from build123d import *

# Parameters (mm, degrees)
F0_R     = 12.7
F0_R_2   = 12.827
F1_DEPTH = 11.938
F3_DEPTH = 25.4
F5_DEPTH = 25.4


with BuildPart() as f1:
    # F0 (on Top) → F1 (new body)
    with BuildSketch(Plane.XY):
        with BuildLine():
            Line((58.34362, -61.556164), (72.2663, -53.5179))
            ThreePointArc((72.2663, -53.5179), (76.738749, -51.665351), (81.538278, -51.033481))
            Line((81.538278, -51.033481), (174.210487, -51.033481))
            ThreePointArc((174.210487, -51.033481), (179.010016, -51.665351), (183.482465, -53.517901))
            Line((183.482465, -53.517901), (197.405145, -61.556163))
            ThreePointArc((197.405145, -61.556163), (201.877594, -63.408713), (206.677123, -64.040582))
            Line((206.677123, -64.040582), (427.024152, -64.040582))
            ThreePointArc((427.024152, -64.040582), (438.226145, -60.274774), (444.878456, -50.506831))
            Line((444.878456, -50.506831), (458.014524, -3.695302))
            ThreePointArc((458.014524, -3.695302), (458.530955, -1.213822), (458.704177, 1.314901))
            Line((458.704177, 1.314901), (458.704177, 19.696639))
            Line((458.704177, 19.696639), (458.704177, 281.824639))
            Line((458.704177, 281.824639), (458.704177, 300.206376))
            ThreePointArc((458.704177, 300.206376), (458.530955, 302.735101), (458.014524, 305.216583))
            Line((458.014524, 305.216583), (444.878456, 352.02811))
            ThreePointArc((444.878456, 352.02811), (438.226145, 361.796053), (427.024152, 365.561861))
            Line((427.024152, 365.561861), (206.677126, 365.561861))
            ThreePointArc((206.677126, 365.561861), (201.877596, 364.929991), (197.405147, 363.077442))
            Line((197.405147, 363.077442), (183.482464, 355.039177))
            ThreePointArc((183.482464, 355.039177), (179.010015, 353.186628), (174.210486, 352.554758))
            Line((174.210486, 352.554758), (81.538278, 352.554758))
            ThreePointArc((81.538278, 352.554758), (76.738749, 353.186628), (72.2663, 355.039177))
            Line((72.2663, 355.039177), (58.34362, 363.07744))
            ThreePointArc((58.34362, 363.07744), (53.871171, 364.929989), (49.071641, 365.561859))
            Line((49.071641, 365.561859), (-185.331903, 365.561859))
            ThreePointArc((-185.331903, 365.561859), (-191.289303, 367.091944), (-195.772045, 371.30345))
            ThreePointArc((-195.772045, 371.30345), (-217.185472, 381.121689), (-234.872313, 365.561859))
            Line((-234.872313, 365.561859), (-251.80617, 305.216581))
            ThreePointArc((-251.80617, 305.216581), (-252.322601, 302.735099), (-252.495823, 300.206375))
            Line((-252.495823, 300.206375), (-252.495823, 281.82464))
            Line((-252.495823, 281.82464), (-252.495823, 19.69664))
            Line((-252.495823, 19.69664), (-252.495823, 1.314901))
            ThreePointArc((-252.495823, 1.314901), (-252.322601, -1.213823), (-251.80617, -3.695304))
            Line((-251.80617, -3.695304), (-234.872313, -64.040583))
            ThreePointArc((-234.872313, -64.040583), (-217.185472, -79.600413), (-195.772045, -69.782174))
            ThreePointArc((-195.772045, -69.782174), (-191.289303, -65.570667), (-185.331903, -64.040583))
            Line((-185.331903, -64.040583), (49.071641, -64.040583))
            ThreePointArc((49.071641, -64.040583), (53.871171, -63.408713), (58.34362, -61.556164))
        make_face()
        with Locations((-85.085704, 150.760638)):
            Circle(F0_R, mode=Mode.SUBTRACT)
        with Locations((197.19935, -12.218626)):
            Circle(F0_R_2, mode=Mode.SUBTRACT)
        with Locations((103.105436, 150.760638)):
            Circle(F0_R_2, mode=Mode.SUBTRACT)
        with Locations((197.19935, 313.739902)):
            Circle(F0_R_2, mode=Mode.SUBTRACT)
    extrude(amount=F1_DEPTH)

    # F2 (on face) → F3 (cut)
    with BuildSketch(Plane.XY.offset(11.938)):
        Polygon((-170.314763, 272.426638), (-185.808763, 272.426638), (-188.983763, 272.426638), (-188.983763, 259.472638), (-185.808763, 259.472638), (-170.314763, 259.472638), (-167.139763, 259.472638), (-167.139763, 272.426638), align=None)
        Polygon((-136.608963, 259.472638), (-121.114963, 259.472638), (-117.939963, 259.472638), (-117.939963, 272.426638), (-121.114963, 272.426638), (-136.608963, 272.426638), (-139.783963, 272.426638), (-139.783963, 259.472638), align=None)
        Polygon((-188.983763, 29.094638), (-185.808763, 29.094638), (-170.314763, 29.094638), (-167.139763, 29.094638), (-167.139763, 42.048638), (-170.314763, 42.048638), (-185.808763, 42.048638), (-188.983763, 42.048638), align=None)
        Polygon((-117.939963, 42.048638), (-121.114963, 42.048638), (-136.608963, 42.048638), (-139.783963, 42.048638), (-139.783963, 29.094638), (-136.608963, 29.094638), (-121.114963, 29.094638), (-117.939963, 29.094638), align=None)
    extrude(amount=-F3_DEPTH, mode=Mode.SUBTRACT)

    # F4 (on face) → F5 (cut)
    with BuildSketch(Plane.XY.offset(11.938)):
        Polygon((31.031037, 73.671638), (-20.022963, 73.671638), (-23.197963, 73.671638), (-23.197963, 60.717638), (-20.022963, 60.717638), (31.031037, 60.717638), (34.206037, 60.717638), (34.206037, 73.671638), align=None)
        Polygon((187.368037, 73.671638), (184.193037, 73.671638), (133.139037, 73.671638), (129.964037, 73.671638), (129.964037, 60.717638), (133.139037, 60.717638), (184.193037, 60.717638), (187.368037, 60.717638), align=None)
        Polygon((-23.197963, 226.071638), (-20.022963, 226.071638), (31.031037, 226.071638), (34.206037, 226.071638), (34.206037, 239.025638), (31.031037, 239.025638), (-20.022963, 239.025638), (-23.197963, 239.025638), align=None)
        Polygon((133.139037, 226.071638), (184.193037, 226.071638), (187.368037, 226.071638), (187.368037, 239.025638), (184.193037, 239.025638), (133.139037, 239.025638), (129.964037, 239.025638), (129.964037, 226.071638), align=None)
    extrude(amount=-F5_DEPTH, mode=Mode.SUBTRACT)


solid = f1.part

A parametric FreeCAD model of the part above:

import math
import FreeCAD as App
import Part
import Sketcher
from FreeCAD import Vector
Q = App.Units.Quantity


def add_polygon(sketch, points):
    """Adds a closed chain of lines whose ends are joined by coincident constraints."""
    first, n = sketch.GeometryCount, len(points)
    for a, b in zip(points, points[1:] + points[:1]):
        sketch.addGeometry(Part.LineSegment(App.Vector(*a, 0), App.Vector(*b, 0)), False)
    for i in range(n):
        sketch.addConstraint(Sketcher.Constraint("Coincident", first + i, 2, first + (i + 1) % n, 1))

doc = App.newDocument("Part")
body = doc.addObject("PartDesign::Body", "Body")

sketch1 = body.newObject("Sketcher::SketchObject", "Sketch")
sketch1.AttachmentSupport = (doc.getObject("XY_Plane"), [""])
sketch1.MapMode = "FlatFace"
sketch1.addGeometry([
    Part.LineSegment(Vector(58.34362, -61.556164, 0), Vector(72.2663, -53.5179, 0)),
    Part.ArcOfCircle(Part.Circle(Vector(81.538278, -69.577438, 0), Vector(0, 0, 1), 18.543957), math.radians(90), math.radians(119.999999)),
    Part.LineSegment(Vector(81.538278, -51.033481, 0), Vector(174.210487, -51.033481, 0)),
    Part.ArcOfCircle(Part.Circle(Vector(174.210489, -69.577425, 0), Vector(0, 0, 1), 18.543944), math.radians(59.999984), math.radians(90.000005)),
    Part.LineSegment(Vector(183.482465, -53.517901, 0), Vector(197.405145, -61.556163, 0)),
    Part.ArcOfCircle(Part.Circle(Vector(206.677116, -45.496653, 0), Vector(0, 0, 1), 18.543929), math.radians(-120.000022), math.radians(-89.999978)),
    Part.LineSegment(Vector(206.677123, -64.040582, 0), Vector(427.024152, -64.040582, 0)),
    Part.ArcOfCircle(Part.Circle(Vector(427.024152, -45.496625, 0), Vector(0, 0, 1), 18.543957), math.radians(-89.999999), math.radians(-15.674978)),
    Part.LineSegment(Vector(444.878456, -50.506831, 0), Vector(458.014524, -3.695302, 0)),
    Part.ArcOfCircle(Part.Circle(Vector(440.160281, 1.314896, 0), Vector(0, 0, 1), 18.543896), math.radians(-15.675005), math.radians(0.000015)),
    Part.LineSegment(Vector(458.704177, 1.314901, 0), Vector(458.704177, 300.206376, 0)),
    Part.ArcOfCircle(Part.Circle(Vector(440.160252, 300.206381, 0), Vector(0, 0, 1), 18.543925), math.radians(-0.000015), math.radians(15.674993)),
    Part.LineSegment(Vector(458.014524, 305.216583, 0), Vector(444.878456, 352.02811, 0)),
    Part.ArcOfCircle(Part.Circle(Vector(427.024152, 347.017904, 0), Vector(0, 0, 1), 18.543957), math.radians(15.674978), math.radians(89.999999)),
    Part.LineSegment(Vector(427.024152, 365.561861, 0), Vector(206.677126, 365.561861, 0)),
    Part.ArcOfCircle(Part.Circle(Vector(206.677125, 347.017904, 0), Vector(0, 0, 1), 18.543957), math.radians(89.999997), math.radians(119.999999)),
    Part.LineSegment(Vector(197.405147, 363.077442, 0), Vector(183.482464, 355.039177, 0)),
    Part.ArcOfCircle(Part.Circle(Vector(174.210486, 371.098715, 0), Vector(0, 0, 1), 18.543957), math.radians(-90), math.radians(-60.000001)),
    Part.LineSegment(Vector(174.210486, 352.554758, 0), Vector(81.538278, 352.554758, 0)),
    Part.ArcOfCircle(Part.Circle(Vector(81.538278, 371.098715, 0), Vector(0, 0, 1), 18.543957), math.radians(-119.999999), math.radians(-90)),
    Part.LineSegment(Vector(72.2663, 355.039177, 0), Vector(58.34362, 363.07744, 0)),
    Part.ArcOfCircle(Part.Circle(Vector(49.071642, 347.017902, 0), Vector(0, 0, 1), 18.543957), math.radians(60.000001), math.radians(90.000003)),
    Part.LineSegment(Vector(49.071641, 365.561859, 0), Vector(-185.331903, 365.561859, 0)),
    Part.ArcOfCircle(Part.Circle(Vector(-185.331903, 377.924498, 0), Vector(0, 0, 1), 12.362639), math.radians(-147.617481), math.radians(-90.000001)),
    Part.ArcOfCircle(Part.Circle(Vector(-214.042292, 359.716619, 0), Vector(0, 0, 1), 21.634615), math.radians(32.382512), math.radians(164.325024)),
    Part.LineSegment(Vector(-234.872313, 365.561859, 0), Vector(-251.80617, 305.216581, 0)),
    Part.ArcOfCircle(Part.Circle(Vector(-233.951898, 300.206379, 0), Vector(0, 0, 1), 18.543925), math.radians(164.325007), math.radians(180.000012)),
    Part.LineSegment(Vector(-252.495823, 300.206375, 0), Vector(-252.495823, 1.314901, 0)),
    Part.ArcOfCircle(Part.Circle(Vector(-233.951912, 1.314896, 0), Vector(0, 0, 1), 18.543911), math.radians(179.999985), math.radians(195.674999)),
    Part.LineSegment(Vector(-251.80617, -3.695304, 0), Vector(-234.872313, -64.040583, 0)),
    Part.ArcOfCircle(Part.Circle(Vector(-214.042292, -58.195343, 0), Vector(0, 0, 1), 21.634615), math.radians(-164.325024), math.radians(-32.382512)),
    Part.ArcOfCircle(Part.Circle(Vector(-185.331906, -76.403216, 0), Vector(0, 0, 1), 12.362633), math.radians(89.999985), math.radians(147.617497)),
    Part.LineSegment(Vector(-185.331903, -64.040583, 0), Vector(49.071641, -64.040583, 0)),
    Part.ArcOfCircle(Part.Circle(Vector(49.071642, -45.496626, 0), Vector(0, 0, 1), 18.543957), math.radians(-90.000003), math.radians(-60.000001)),
    Part.Circle(Vector(197.19935, -12.218626, 0), Vector(0, 0, 1), 12.827),
    Part.Circle(Vector(-85.085704, 150.760638, 0), Vector(0, 0, 1), 12.7),
    Part.Circle(Vector(103.105436, 150.760638, 0), Vector(0, 0, 1), 12.827),
    Part.Circle(Vector(197.19935, 313.739902, 0), Vector(0, 0, 1), 12.827),
], False)
sketch1.addConstraint([
    Sketcher.Constraint("Coincident", 0, 2, 1, 2),
    Sketcher.Constraint("Coincident", 1, 1, 2, 1),
    Sketcher.Constraint("Coincident", 2, 2, 3, 2),
    Sketcher.Constraint("Coincident", 3, 1, 4, 1),
    Sketcher.Constraint("Coincident", 4, 2, 5, 1),
    Sketcher.Constraint("Coincident", 5, 2, 6, 1),
    Sketcher.Constraint("Coincident", 6, 2, 7, 1),
    Sketcher.Constraint("Coincident", 7, 2, 8, 1),
    Sketcher.Constraint("Coincident", 8, 2, 9, 1),
    Sketcher.Constraint("Coincident", 9, 2, 10, 1),
    Sketcher.Constraint("Coincident", 10, 2, 11, 1),
    Sketcher.Constraint("Coincident", 11, 2, 12, 1),
    Sketcher.Constraint("Coincident", 12, 2, 13, 1),
    Sketcher.Constraint("Coincident", 13, 2, 14, 1),
    Sketcher.Constraint("Coincident", 14, 2, 15, 1),
    Sketcher.Constraint("Coincident", 15, 2, 16, 1),
    Sketcher.Constraint("Coincident", 16, 2, 17, 2),
    Sketcher.Constraint("Coincident", 17, 1, 18, 1),
    Sketcher.Constraint("Coincident", 18, 2, 19, 2),
    Sketcher.Constraint("Coincident", 19, 1, 20, 1),
    Sketcher.Constraint("Coincident", 20, 2, 21, 1),
    Sketcher.Constraint("Coincident", 21, 2, 22, 1),
    Sketcher.Constraint("Coincident", 22, 2, 23, 2),
    Sketcher.Constraint("Coincident", 23, 1, 24, 1),
    Sketcher.Constraint("Coincident", 24, 2, 25, 1),
    Sketcher.Constraint("Coincident", 25, 2, 26, 1),
    Sketcher.Constraint("Coincident", 26, 2, 27, 1),
    Sketcher.Constraint("Coincident", 27, 2, 28, 1),
    Sketcher.Constraint("Coincident", 28, 2, 29, 1),
    Sketcher.Constraint("Coincident", 29, 2, 30, 1),
    Sketcher.Constraint("Coincident", 30, 2, 31, 2),
    Sketcher.Constraint("Coincident", 31, 1, 32, 1),
    Sketcher.Constraint("Coincident", 32, 2, 33, 1),
    Sketcher.Constraint("Coincident", 33, 2, 0, 1),
    Sketcher.Constraint("Horizontal", 2),
    Sketcher.Constraint("Horizontal", 6),
    Sketcher.Constraint("Vertical", 10),
    Sketcher.Constraint("Horizontal", 14),
    Sketcher.Constraint("Horizontal", 18),
    Sketcher.Constraint("Horizontal", 22),
    Sketcher.Constraint("Vertical", 27),
    Sketcher.Constraint("Horizontal", 32),
    Sketcher.Constraint("Diameter", 35, Q("1 in")),
    Sketcher.Constraint("Diameter", 34, Q("1.01 in")),
    Sketcher.Constraint("Diameter", 36, Q("1.01 in")),
    Sketcher.Constraint("Diameter", 37, Q("1.01 in")),
    Sketcher.Constraint("Radius", 5, 18.543929),
    Sketcher.Constraint("Radius", 23, 12.362639),
    Sketcher.Constraint("Radius", 28, 18.543911),
    Sketcher.Constraint("DistanceX", -1, 1, 7, 2, Q("17.5148998 in")),
    Sketcher.Constraint("DistanceX", -1, 1, 12, 2, Q("17.5148998 in")),
    Sketcher.Constraint("Radius", 1, 18.543957),
    Sketcher.Constraint("Radius", 3, 18.543944),
    Sketcher.Constraint("Radius", 7, 18.543957),
    Sketcher.Constraint("Radius", 9, 18.543896),
    Sketcher.Constraint("Radius", 11, 18.543925),
    Sketcher.Constraint("Radius", 13, 18.543957),
    Sketcher.Constraint("Radius", 15, 18.543957),
    Sketcher.Constraint("Radius", 17, 18.543957),
    Sketcher.Constraint("Radius", 19, 18.543957),
    Sketcher.Constraint("Radius", 21, 18.543957),
    Sketcher.Constraint("Radius", 24, 21.634615),
    Sketcher.Constraint("Radius", 26, 18.543925),
    Sketcher.Constraint("Radius", 30, 21.634615),
    Sketcher.Constraint("Radius", 31, 12.362633),
    Sketcher.Constraint("Radius", 33, 18.543957),
    Sketcher.Constraint("DistanceX", 23, 3, 19, 3, Q("10.5067 in")),
    Sketcher.Constraint("DistanceX", 23, 3, 1, 3, Q("10.5067 in")),
    Sketcher.Constraint("DistanceX", 31, 3, 1, 3, Q("10.5067002 in")),
    Sketcher.Constraint("DistanceX", 35, 3, 36, 3, Q("7.4091 in")),
    Sketcher.Constraint("Distance", 12, 48.619701),
    Sketcher.Constraint("DistanceX", 2, 1, 2, 2, 92.672209),
    Sketcher.Constraint("DistanceX", 6, 1, 6, 2, 220.347029),
    Sketcher.Constraint("DistanceY", -1, 1, 23, 3, 377.924498),
    Sketcher.Constraint("DistanceY", -1, 1, 37, 3, 313.739902),
    Sketcher.Constraint("DistanceX", -1, 1, 0, 2, 72.2663),
    Sketcher.Constraint("DistanceY", 0, 2, -1, 1, 53.5179),
    Sketcher.Constraint("DistanceY", 3, 1, -1, 1, 53.517901),
    Sketcher.Constraint("DistanceY", 8, 2, -1, 1, 3.695302),
    Sketcher.Constraint("DistanceY", -1, 1, 9, 2, 1.314901),
    Sketcher.Constraint("DistanceX", -1, 1, 19, 1, 72.2663),
    Sketcher.Constraint("DistanceY", -1, 1, 27, 2, 1.314901),
    Sketcher.Constraint("DistanceY", 3, 3, 7, 3, 24.0808),
    Sketcher.Constraint("DistanceX", 7, 3, 11, 3, 13.1361),
    Sketcher.Constraint("DistanceX", 13, 3, 11, 3, 13.1361),
    Sketcher.Constraint("DistanceX", 28, 3, 3, 3, 408.162401),
    Sketcher.Constraint("DistanceY", 3, 3, 33, 3, 24.080799),
    Sketcher.Constraint("DistanceY", 3, 3, 34, 3, 57.358799),
    Sketcher.Constraint("DistanceX", 34, 3, 7, 3, 229.824802),
    Sketcher.Constraint("DistanceY", 8, 2, 9, 3, 5.010198),
    Sketcher.Constraint("DistanceX", 15, 3, 11, 2, 251.337399),
    Sketcher.Constraint("DistanceX", 13, 2, 11, 3, 13.1361),
    Sketcher.Constraint("DistanceY", 18, 2, 21, 2, 13.007101),
    Sketcher.Constraint("DistanceY", 28, 2, 28, 3, 5.0102),
    Sketcher.Constraint("DistanceX", 29, 2, 28, 3, 0.920401),
    Sketcher.Constraint("Distance", 16, 16.07653),
    Sketcher.Constraint("DistanceX", 14, 2, 14, 1, 220.347026),
    Sketcher.Constraint("DistanceX", 18, 2, 18, 1, 92.672208),
    Sketcher.Constraint("DistanceX", 22, 2, 22, 1, 234.403544),
    Sketcher.Constraint("DistanceX", 32, 1, 32, 2, 234.403544),
    Sketcher.Constraint("DistanceY", 10, 1, 10, 2, 298.891475),
    Sketcher.Constraint("DistanceY", 27, 2, 27, 1, 298.891474),
    Sketcher.Constraint("DistanceX", -1, 1, 1, 3, 81.538278),
    Sketcher.Constraint("DistanceX", -1, 1, 3, 3, 174.210489),
    Sketcher.Constraint("DistanceX", -1, 1, 7, 3, 427.024152),
    Sketcher.Constraint("DistanceY", -1, 1, 11, 3, 300.206381),
    Sketcher.Constraint("DistanceX", -1, 1, 21, 3, 49.071642),
    Sketcher.Constraint("DistanceY", -1, 1, 24, 3, 359.716619),
    Sketcher.Constraint("DistanceY", -1, 1, 26, 3, 300.206379),
    Sketcher.Constraint("DistanceX", -1, 1, 33, 3, 49.071642),
    Sketcher.Constraint("DistanceY", -1, 1, 35, 3, 150.760638),
    Sketcher.Constraint("DistanceY", -1, 1, 36, 3, 150.760638),
    Sketcher.Constraint("DistanceX", -1, 1, 37, 3, 197.19935),
    Sketcher.Constraint("DistanceX", -1, 1, 1, 1, 81.538278),
    Sketcher.Constraint("DistanceX", -1, 1, 6, 2, 427.024152),
    Sketcher.Constraint("DistanceY", -1, 1, 12, 2, 352.02811),
    Sketcher.Constraint("DistanceX", -1, 1, 18, 2, 81.538278),
    Sketcher.Constraint("DistanceX", -1, 1, 20, 2, 58.34362),
    Sketcher.Constraint("DistanceX", -1, 1, 21, 2, 49.071641),
    Sketcher.Constraint("DistanceY", -1, 1, 23, 1, 371.30345),
    Sketcher.Constraint("DistanceY", -1, 1, 24, 2, 365.561859),
    Sketcher.Constraint("DistanceX", 25, 2, -1, 1, 251.80617),
    Sketcher.Constraint("DistanceX", -1, 1, 32, 2, 49.071641),
    Sketcher.Constraint("DistanceX", -1, 1, 33, 2, 58.34362),
    Sketcher.Constraint("DistanceX", 17, 3, 15, 3, 32.466639),
    Sketcher.Constraint("DistanceX", 17, 3, 5, 3, 32.46663),
    Sketcher.Constraint("DistanceY", 3, 3, 28, 3, 70.892321),
    Sketcher.Constraint("DistanceX", 28, 3, 30, 3, 19.90962),
    Sketcher.Constraint("DistanceX", 28, 3, 35, 3, 148.866208),
    Sketcher.Constraint("DistanceX", 3, 1, 4, 2, 13.92268),
    Sketcher.Constraint("DistanceX", 15, 2, 14, 2, 9.271979),
    Sketcher.Constraint("DistanceX", 30, 2, 31, 3, 10.440139),
])
pad1 = body.newObject("PartDesign::Pad", "Pad")
pad1.Profile = sketch1
pad1.Length = Q("0.47 in")

sketch2 = body.newObject("Sketcher::SketchObject", "Sketch001")
sketch2.AttachmentSupport = (doc.getObject("XY_Plane"), [""])
sketch2.MapMode = "FlatFace"
sketch2.AttachmentOffset = App.Placement(Vector(0, 0, 0.47 * 25.4), App.Rotation())
add_polygon(sketch2, [(-189, 272), (-189, 259), (-167, 259), (-167, 272)])
add_polygon(sketch2, [(-118, 259), (-118, 272), (-140, 272), (-140, 259)])
add_polygon(sketch2, [(-189, 29), (-167, 29), (-167, 42), (-189, 42)])
add_polygon(sketch2, [(-118, 42), (-140, 42), (-140, 29), (-118, 29)])
sketch2.addConstraint([
    Sketcher.Constraint("Vertical", 0),
    Sketcher.Constraint("Horizontal", 1),
    Sketcher.Constraint("Vertical", 2),
    Sketcher.Constraint("Horizontal", 3),
    Sketcher.Constraint("Vertical", 4),
    Sketcher.Constraint("Horizontal", 5),
    Sketcher.Constraint("Vertical", 6),
    Sketcher.Constraint("Horizontal", 7),
    Sketcher.Constraint("Horizontal", 8),
    Sketcher.Constraint("Vertical", 9),
    Sketcher.Constraint("Horizontal", 10),
    Sketcher.Constraint("Vertical", 11),
    Sketcher.Constraint("Horizontal", 12),
    Sketcher.Constraint("Vertical", 13),
    Sketcher.Constraint("Horizontal", 14),
    Sketcher.Constraint("Vertical", 15),
    Sketcher.Constraint("Horizontal", 3, 2, 4, 2),
    Sketcher.Constraint("Horizontal", 1, 2, 6, 2),
    Sketcher.Constraint("Horizontal", 10, 2, 12, 2),
    Sketcher.Constraint("Horizontal", 11, 2, 13, 2),
    Sketcher.Constraint("Vertical", 2, 2, 8, 2),
    Sketcher.Constraint("Vertical", 3, 2, 10, 2),
    Sketcher.Constraint("Vertical", 6, 2, 12, 2),
    Sketcher.Constraint("Vertical", 7, 2, 14, 2),
    Sketcher.Constraint("Equal", 3, 5),
    Sketcher.Constraint("Equal", 6, 9),
    Sketcher.Constraint("DistanceX", 1, 1, 1, 2, Q("0.86 in")),
    Sketcher.Constraint("DistanceY", 0, 2, 0, 1, Q("0.51 in")),
    Sketcher.Constraint("DistanceY", 8, 2, 1, 2, Q("9.07 in")),
    Sketcher.Constraint("DistanceX", 2, 2, 4, 2, Q("1.937 in")),
    Sketcher.Constraint("DistanceY", -1, 1, 0, 2, 259.472638),
    Sketcher.Constraint("DistanceX", 0, 2, -1, 1, 188.983763),
])
pocket1 = body.newObject("PartDesign::Pocket", "Pocket")
pocket1.Profile = sketch2
pocket1.Length = Q("1 in")

sketch3 = body.newObject("Sketcher::SketchObject", "Sketch002")
sketch3.AttachmentSupport = (doc.getObject("XY_Plane"), [""])
sketch3.MapMode = "FlatFace"
sketch3.AttachmentOffset = App.Placement(Vector(0, 0, 0.47 * 25.4), App.Rotation())
add_polygon(sketch3, [(-23, 74), (-23, 61), (34, 61), (34, 74)])
add_polygon(sketch3, [(187, 74), (130, 74), (130, 61), (187, 61)])
add_polygon(sketch3, [(-23, 226), (34, 226), (34, 239), (-23, 239)])
add_polygon(sketch3, [(187, 226), (187, 239), (130, 239), (130, 226)])
sketch3.addConstraint([
    Sketcher.Constraint("Vertical", 0),
    Sketcher.Constraint("Horizontal", 1),
    Sketcher.Constraint("Vertical", 2),
    Sketcher.Constraint("Horizontal", 3),
    Sketcher.Constraint("Horizontal", 4),
    Sketcher.Constraint("Vertical", 5),
    Sketcher.Constraint("Horizontal", 6),
    Sketcher.Constraint("Vertical", 7),
    Sketcher.Constraint("Horizontal", 8),
    Sketcher.Constraint("Vertical", 9),
    Sketcher.Constraint("Horizontal", 10),
    Sketcher.Constraint("Vertical", 11),
    Sketcher.Constraint("Vertical", 12),
    Sketcher.Constraint("Horizontal", 13),
    Sketcher.Constraint("Vertical", 14),
    Sketcher.Constraint("Horizontal", 15),
    Sketcher.Constraint("Horizontal", 3, 2, 4, 2),
    Sketcher.Constraint("Horizontal", 1, 2, 5, 2),
    Sketcher.Constraint("Horizontal", 10, 2, 12, 2),
    Sketcher.Constraint("Horizontal", 11, 2, 14, 2),
    Sketcher.Constraint("Vertical", 2, 2, 8, 2),
    Sketcher.Constraint("Vertical", 3, 2, 10, 2),
    Sketcher.Constraint("Vertical", 7, 2, 12, 2),
    Sketcher.Constraint("Vertical", 5, 2, 13, 2),
    Sketcher.Constraint("Equal", 3, 4),
    Sketcher.Constraint("Equal", 7, 9),
    Sketcher.Constraint("DistanceY", 2, 2, 8, 2, Q("6 in")),
    Sketcher.Constraint("DistanceX", 1, 1, 1, 2, Q("2.26 in")),
    Sketcher.Constraint("DistanceY", 0, 2, 0, 1, Q("0.51 in")),
    Sketcher.Constraint("DistanceX", 2, 2, 4, 2, Q("3.77 in")),
    Sketcher.Constraint("DistanceY", -1, 1, 2, 2, 73.671638),
    Sketcher.Constraint("DistanceX", 0, 2, -1, 1, 23.197963),
])
pocket2 = body.newObject("PartDesign::Pocket", "Pocket001")
pocket2.Profile = sketch3
pocket2.Length = Q("1 in")

doc.recompute()
